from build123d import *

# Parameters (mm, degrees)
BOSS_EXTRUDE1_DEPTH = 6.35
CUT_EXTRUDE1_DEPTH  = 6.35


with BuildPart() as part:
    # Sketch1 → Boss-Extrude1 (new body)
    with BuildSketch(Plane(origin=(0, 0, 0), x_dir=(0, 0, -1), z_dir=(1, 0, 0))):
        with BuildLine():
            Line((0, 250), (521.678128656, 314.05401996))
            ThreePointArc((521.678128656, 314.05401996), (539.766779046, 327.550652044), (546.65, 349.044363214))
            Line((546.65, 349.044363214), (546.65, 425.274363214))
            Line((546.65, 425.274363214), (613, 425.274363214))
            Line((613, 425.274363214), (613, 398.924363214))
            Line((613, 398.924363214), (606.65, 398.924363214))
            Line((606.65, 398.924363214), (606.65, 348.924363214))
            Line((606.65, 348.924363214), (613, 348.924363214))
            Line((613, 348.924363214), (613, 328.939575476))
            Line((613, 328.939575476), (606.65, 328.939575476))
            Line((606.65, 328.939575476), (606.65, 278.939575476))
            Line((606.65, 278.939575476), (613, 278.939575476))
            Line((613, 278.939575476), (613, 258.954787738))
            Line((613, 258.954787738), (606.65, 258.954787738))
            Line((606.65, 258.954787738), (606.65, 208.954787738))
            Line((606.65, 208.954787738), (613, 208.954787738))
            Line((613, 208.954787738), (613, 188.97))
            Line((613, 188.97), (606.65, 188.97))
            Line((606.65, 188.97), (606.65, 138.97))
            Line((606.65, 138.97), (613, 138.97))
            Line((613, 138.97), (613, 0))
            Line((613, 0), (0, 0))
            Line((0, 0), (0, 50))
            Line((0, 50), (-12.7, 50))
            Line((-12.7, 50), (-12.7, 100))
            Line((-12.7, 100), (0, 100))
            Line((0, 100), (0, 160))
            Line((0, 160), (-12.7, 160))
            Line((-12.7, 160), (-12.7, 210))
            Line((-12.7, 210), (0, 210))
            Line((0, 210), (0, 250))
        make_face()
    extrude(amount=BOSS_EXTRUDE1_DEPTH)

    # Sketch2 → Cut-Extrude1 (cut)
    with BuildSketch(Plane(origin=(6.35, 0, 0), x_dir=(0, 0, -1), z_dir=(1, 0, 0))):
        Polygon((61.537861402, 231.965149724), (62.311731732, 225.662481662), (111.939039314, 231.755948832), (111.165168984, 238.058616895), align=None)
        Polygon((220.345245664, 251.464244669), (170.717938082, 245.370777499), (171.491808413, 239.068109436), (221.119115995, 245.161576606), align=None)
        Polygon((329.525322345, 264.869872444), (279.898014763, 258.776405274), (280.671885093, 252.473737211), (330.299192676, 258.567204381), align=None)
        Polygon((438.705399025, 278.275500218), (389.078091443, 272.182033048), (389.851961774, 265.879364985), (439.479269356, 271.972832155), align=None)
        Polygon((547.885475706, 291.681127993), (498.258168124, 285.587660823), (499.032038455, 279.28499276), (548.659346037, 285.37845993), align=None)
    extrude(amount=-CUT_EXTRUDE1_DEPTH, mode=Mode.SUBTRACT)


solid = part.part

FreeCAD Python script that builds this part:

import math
import FreeCAD as App
import Part
import Sketcher

V = App.Vector
Q = App.Units.Quantity


def add_polygon(sketch, points):
    """Adds a closed chain of lines whose ends are joined by coincident constraints."""
    first, n = sketch.GeometryCount, len(points)
    for a, b in zip(points, points[1:] + points[:1]):
        sketch.addGeometry(Part.LineSegment(App.Vector(*a, 0), App.Vector(*b, 0)), False)
    for i in range(n):
        sketch.addConstraint(Sketcher.Constraint("Coincident", first + i, 2, first + (i + 1) % n, 1))

doc = App.newDocument("Part")
body = doc.addObject("PartDesign::Body", "Body")

sketch1 = body.newObject("Sketcher::SketchObject", "Sketch")
sketch1.AttachmentSupport = (doc.getObject("YZ_Plane"), [""])
sketch1.MapMode = "FlatFace"
sketch1.addGeometry([
    Part.LineSegment(V(314, -522, 0), V(250, 0, 0)),
    Part.LineSegment(V(250, 0, 0), V(210, 0, 0)),
    Part.LineSegment(V(210, 0, 0), V(210, 13, 0)),
    Part.LineSegment(V(210, 13, 0), V(160, 13, 0)),
    Part.LineSegment(V(160, 13, 0), V(160, 0, 0)),
    Part.LineSegment(V(160, 0, 0), V(100, 0, 0)),
    Part.LineSegment(V(100, 0, 0), V(100, 13, 0)),
    Part.LineSegment(V(100, 13, 0), V(50, 13, 0)),
    Part.LineSegment(V(50, 13, 0), V(50, 0, 0)),
    Part.LineSegment(V(50, 0, 0), V(0, 0, 0)),
    Part.LineSegment(V(0, 0, 0), V(0, -613, 0)),
    Part.LineSegment(V(0, -613, 0), V(139, -613, 0)),
    Part.LineSegment(V(139, -613, 0), V(139, -607, 0)),
    Part.LineSegment(V(139, -607, 0), V(189, -607, 0)),
    Part.LineSegment(V(189, -607, 0), V(189, -613, 0)),
    Part.LineSegment(V(189, -613, 0), V(209, -613, 0)),
    Part.LineSegment(V(209, -613, 0), V(209, -607, 0)),
    Part.LineSegment(V(209, -607, 0), V(259, -607, 0)),
    Part.LineSegment(V(259, -607, 0), V(259, -613, 0)),
    Part.LineSegment(V(259, -613, 0), V(279, -613, 0)),
    Part.LineSegment(V(279, -613, 0), V(279, -607, 0)),
    Part.LineSegment(V(279, -607, 0), V(329, -607, 0)),
    Part.LineSegment(V(329, -607, 0), V(329, -613, 0)),
    Part.LineSegment(V(329, -613, 0), V(349, -613, 0)),
    Part.LineSegment(V(349, -613, 0), V(349, -607, 0)),
    Part.LineSegment(V(349, -607, 0), V(399, -607, 0)),
    Part.LineSegment(V(399, -607, 0), V(399, -613, 0)),
    Part.LineSegment(V(399, -613, 0), V(425, -613, 0)),
    Part.LineSegment(V(425, -613, 0), V(425, -547, 0)),
    Part.LineSegment(V(425, -547, 0), V(349, -547, 0)),
    Part.ArcOfCircle(Part.Circle(V(349, -510, 0), V(0, 0, 1), 37), math.radians(-161), math.radians(-90)),
], False)
sketch1.addConstraint([
    Sketcher.Constraint("Coincident", 0, 2, 1, 1),
    Sketcher.Constraint("Coincident", 1, 2, 2, 1),
    Sketcher.Constraint("Coincident", 2, 2, 3, 1),
    Sketcher.Constraint("Coincident", 3, 2, 4, 1),
    Sketcher.Constraint("Coincident", 4, 2, 5, 1),
    Sketcher.Constraint("Coincident", 5, 2, 6, 1),
    Sketcher.Constraint("Coincident", 6, 2, 7, 1),
    Sketcher.Constraint("Coincident", 7, 2, 8, 1),
    Sketcher.Constraint("Coincident", 8, 2, 9, 1),
    Sketcher.Constraint("Coincident", 9, 2, 10, 1),
    Sketcher.Constraint("Coincident", 10, 2, 11, 1),
    Sketcher.Constraint("Coincident", 11, 2, 12, 1),
    Sketcher.Constraint("Coincident", 12, 2, 13, 1),
    Sketcher.Constraint("Coincident", 13, 2, 14, 1),
    Sketcher.Constraint("Coincident", 14, 2, 15, 1),
    Sketcher.Constraint("Coincident", 15, 2, 16, 1),
    Sketcher.Constraint("Coincident", 16, 2, 17, 1),
    Sketcher.Constraint("Coincident", 17, 2, 18, 1),
    Sketcher.Constraint("Coincident", 18, 2, 19, 1),
    Sketcher.Constraint("Coincident", 19, 2, 20, 1),
    Sketcher.Constraint("Coincident", 20, 2, 21, 1),
    Sketcher.Constraint("Coincident", 21, 2, 22, 1),
    Sketcher.Constraint("Coincident", 22, 2, 23, 1),
    Sketcher.Constraint("Coincident", 23, 2, 24, 1),
    Sketcher.Constraint("Coincident", 24, 2, 25, 1),
    Sketcher.Constraint("Coincident", 25, 2, 26, 1),
    Sketcher.Constraint("Coincident", 26, 2, 27, 1),
    Sketcher.Constraint("Coincident", 27, 2, 28, 1),
    Sketcher.Constraint("Coincident", 28, 2, 29, 1),
    Sketcher.Constraint("Tangent", 29, 2, 30, 2),
    Sketcher.Constraint("Coincident", 30, 1, 0, 1),
    Sketcher.Constraint("Horizontal", 1),
    Sketcher.Constraint("Vertical", 2),
    Sketcher.Constraint("Horizontal", 3),
    Sketcher.Constraint("Vertical", 4),
    Sketcher.Constraint("Horizontal", 5),
    Sketcher.Constraint("Vertical", 6),
    Sketcher.Constraint("Horizontal", 7),
    Sketcher.Constraint("Vertical", 8),
    Sketcher.Constraint("Horizontal", 9),
    Sketcher.Constraint("Vertical", 10),
    Sketcher.Constraint("Horizontal", 11),
    Sketcher.Constraint("Vertical", 12),
    Sketcher.Constraint("Horizontal", 13),
    Sketcher.Constraint("Vertical", 14),
    Sketcher.Constraint("Horizontal", 15),
    Sketcher.Constraint("Vertical", 16),
    Sketcher.Constraint("Horizontal", 17),
    Sketcher.Constraint("Vertical", 18),
    Sketcher.Constraint("Horizontal", 19),
    Sketcher.Constraint("Vertical", 20),
    Sketcher.Constraint("Horizontal", 21),
    Sketcher.Constraint("Vertical", 22),
    Sketcher.Constraint("Horizontal", 23),
    Sketcher.Constraint("Vertical", 24),
    Sketcher.Constraint("Horizontal", 25),
    Sketcher.Constraint("Vertical", 26),
    Sketcher.Constraint("Horizontal", 27),
    Sketcher.Constraint("Vertical", 28),
    Sketcher.Constraint("Horizontal", 29),
    Sketcher.Constraint("Coincident", 9, 2, -1, 1),
    Sketcher.Constraint("PointOnObject", 0, 2, -1),
    Sketcher.Constraint("PointOnObject", 4, 2, -1),
    Sketcher.Constraint("Horizontal", 3, 2, 6, 2),
    Sketcher.Constraint("Horizontal", 11, 2, 14, 2),
    Sketcher.Constraint("Horizontal", 13, 2, 16, 2),
    Sketcher.Constraint("Horizontal", 15, 2, 18, 2),
    Sketcher.Constraint("Horizontal", 17, 2, 20, 2),
    Sketcher.Constraint("Horizontal", 19, 2, 22, 2),
    Sketcher.Constraint("Horizontal", 21, 2, 24, 2),
    Sketcher.Constraint("Horizontal", 23, 2, 26, 2),
    Sketcher.Constraint("Equal", 3, 7),
    Sketcher.Constraint("Equal", 7, 9),
    Sketcher.Constraint("Equal", 9, 13),
    Sketcher.Constraint("Equal", 13, 17),
    Sketcher.Constraint("Equal", 15, 19),
    Sketcher.Constraint("Equal", 17, 21),
    Sketcher.Constraint("Equal", 19, 23),
    Sketcher.Constraint("Equal", 21, 25),
    Sketcher.Constraint("Radius", 30, Q("37 mm")),
    Sketcher.Constraint("DistanceX", 1, 2, 1, 1, Q("40 mm")),
    Sketcher.Constraint("DistanceX", 3, 2, 3, 1, Q("50 mm")),
    Sketcher.Constraint("DistanceX", 5, 2, 5, 1, Q("60 mm")),
    Sketcher.Constraint("DistanceY", 10, 2, 10, 1, Q("613 mm")),
    Sketcher.Constraint("Angle", 0, Q("97 deg")),
    Sketcher.Constraint("DistanceY", 2, 1, 2, 2, Q("12.7 mm")),
    Sketcher.Constraint("DistanceY", 12, 2, 30, 3, Q("97 mm")),
    Sketcher.Constraint("DistanceX", 11, 1, 11, 2, Q("138.97 mm")),
    Sketcher.Constraint("DistanceX", 27, 1, 27, 2, Q("26.35 mm")),
    Sketcher.Constraint("DistanceX", 29, 2, 29, 1, Q("76.23 mm")),
    Sketcher.Constraint("DistanceY", 12, 1, 12, 2, Q("6.35 mm")),
    Sketcher.Constraint("Distance", 0, Q("525.59584 mm")),
])
pad1 = body.newObject("PartDesign::Pad", "Pad")
pad1.Profile = sketch1
pad1.Length = 6.35

sketch2 = body.newObject("Sketcher::SketchObject", "Sketch001")
sketch2.AttachmentSupport = (doc.getObject("YZ_Plane"), [""])
sketch2.MapMode = "FlatFace"
sketch2.AttachmentOffset = App.Placement(V(0, 0, 6.35), App.Rotation())
add_polygon(sketch2, [(232, -62), (226, -62), (232, -112), (238, -111)])
add_polygon(sketch2, [(251, -220), (245, -171), (239, -171), (245, -221)])
add_polygon(sketch2, [(265, -330), (259, -280), (252, -281), (259, -330)])
add_polygon(sketch2, [(278, -439), (272, -389), (266, -390), (272, -439)])
add_polygon(sketch2, [(292, -548), (286, -498), (279, -499), (285, -549)])
sketch2.addConstraint([
    Sketcher.Constraint("Perpendicular", 0, 1),
    Sketcher.Constraint("Perpendicular", 1, 2),
    Sketcher.Constraint("Perpendicular", 2, 3),
    Sketcher.Constraint("Parallel", 3, 4),
    Sketcher.Constraint("Perpendicular", 4, 5),
    Sketcher.Constraint("Perpendicular", 5, 6),
    Sketcher.Constraint("Perpendicular", 6, 7),
    Sketcher.Constraint("Perpendicular", 7, 8),
    Sketcher.Constraint("Perpendicular", 8, 9),
    Sketcher.Constraint("Perpendicular", 9, 10),
    Sketcher.Constraint("Perpendicular", 10, 11),
    Sketcher.Constraint("Perpendicular", 11, 12),
    Sketcher.Constraint("Perpendicular", 12, 13),
    Sketcher.Constraint("Perpendicular", 13, 14),
    Sketcher.Constraint("Perpendicular", 14, 15),
    Sketcher.Constraint("Perpendicular", 15, 16),
    Sketcher.Constraint("Perpendicular", 16, 17),
    Sketcher.Constraint("Perpendicular", 17, 18),
    Sketcher.Constraint("Perpendicular", 18, 19),
    Sketcher.Constraint("Equal", 3, 4),
    Sketcher.Constraint("Equal", 2, 5),
    Sketcher.Constraint("Equal", 6, 8),
    Sketcher.Constraint("Equal", 7, 9),
    Sketcher.Constraint("Equal", 10, 12),
    Sketcher.Constraint("Equal", 11, 13),
    Sketcher.Constraint("Equal", 14, 16),
    Sketcher.Constraint("Equal", 15, 17),
    Sketcher.Constraint("Angle", 0, Q("-173 deg")),
    Sketcher.Constraint("Distance", 1, Q("50 mm")),
    Sketcher.Constraint("Distance", 0, Q("6.35 mm")),
    Sketcher.Constraint("DistanceX", -1, 1, 15, 2, Q("278.2755 mm")),
    Sketcher.Constraint("DistanceY", 15, 2, -1, 1, Q("438.705399 mm")),
    Sketcher.Constraint("DistanceY", 4, 2, 1, 2, Q("58.778899 mm")),
    Sketcher.Constraint("DistanceY", 8, 2, 6, 2, Q("58.778899 mm")),
    Sketcher.Constraint("DistanceY", 12, 2, 10, 2, Q("58.778899 mm")),
    Sketcher.Constraint("DistanceY", 16, 2, 14, 2, Q("58.778899 mm")),
    Sketcher.Constraint("DistanceX", -1, 1, 0, 2, Q("225.662482 mm")),
    Sketcher.Constraint("DistanceX", -1, 1, 5, 2, Q("239.068109 mm")),
    Sketcher.Constraint("DistanceX", -1, 1, 16, 2, Q("285.587661 mm")),
    Sketcher.Constraint("DistanceX", 7, 2, 8, 2, Q("7.312161 mm")),
])
pocket1 = body.newObject("PartDesign::Pocket", "Pocket")
pocket1.Profile = sketch2
pocket1.Length = 6.35

doc.recompute()
